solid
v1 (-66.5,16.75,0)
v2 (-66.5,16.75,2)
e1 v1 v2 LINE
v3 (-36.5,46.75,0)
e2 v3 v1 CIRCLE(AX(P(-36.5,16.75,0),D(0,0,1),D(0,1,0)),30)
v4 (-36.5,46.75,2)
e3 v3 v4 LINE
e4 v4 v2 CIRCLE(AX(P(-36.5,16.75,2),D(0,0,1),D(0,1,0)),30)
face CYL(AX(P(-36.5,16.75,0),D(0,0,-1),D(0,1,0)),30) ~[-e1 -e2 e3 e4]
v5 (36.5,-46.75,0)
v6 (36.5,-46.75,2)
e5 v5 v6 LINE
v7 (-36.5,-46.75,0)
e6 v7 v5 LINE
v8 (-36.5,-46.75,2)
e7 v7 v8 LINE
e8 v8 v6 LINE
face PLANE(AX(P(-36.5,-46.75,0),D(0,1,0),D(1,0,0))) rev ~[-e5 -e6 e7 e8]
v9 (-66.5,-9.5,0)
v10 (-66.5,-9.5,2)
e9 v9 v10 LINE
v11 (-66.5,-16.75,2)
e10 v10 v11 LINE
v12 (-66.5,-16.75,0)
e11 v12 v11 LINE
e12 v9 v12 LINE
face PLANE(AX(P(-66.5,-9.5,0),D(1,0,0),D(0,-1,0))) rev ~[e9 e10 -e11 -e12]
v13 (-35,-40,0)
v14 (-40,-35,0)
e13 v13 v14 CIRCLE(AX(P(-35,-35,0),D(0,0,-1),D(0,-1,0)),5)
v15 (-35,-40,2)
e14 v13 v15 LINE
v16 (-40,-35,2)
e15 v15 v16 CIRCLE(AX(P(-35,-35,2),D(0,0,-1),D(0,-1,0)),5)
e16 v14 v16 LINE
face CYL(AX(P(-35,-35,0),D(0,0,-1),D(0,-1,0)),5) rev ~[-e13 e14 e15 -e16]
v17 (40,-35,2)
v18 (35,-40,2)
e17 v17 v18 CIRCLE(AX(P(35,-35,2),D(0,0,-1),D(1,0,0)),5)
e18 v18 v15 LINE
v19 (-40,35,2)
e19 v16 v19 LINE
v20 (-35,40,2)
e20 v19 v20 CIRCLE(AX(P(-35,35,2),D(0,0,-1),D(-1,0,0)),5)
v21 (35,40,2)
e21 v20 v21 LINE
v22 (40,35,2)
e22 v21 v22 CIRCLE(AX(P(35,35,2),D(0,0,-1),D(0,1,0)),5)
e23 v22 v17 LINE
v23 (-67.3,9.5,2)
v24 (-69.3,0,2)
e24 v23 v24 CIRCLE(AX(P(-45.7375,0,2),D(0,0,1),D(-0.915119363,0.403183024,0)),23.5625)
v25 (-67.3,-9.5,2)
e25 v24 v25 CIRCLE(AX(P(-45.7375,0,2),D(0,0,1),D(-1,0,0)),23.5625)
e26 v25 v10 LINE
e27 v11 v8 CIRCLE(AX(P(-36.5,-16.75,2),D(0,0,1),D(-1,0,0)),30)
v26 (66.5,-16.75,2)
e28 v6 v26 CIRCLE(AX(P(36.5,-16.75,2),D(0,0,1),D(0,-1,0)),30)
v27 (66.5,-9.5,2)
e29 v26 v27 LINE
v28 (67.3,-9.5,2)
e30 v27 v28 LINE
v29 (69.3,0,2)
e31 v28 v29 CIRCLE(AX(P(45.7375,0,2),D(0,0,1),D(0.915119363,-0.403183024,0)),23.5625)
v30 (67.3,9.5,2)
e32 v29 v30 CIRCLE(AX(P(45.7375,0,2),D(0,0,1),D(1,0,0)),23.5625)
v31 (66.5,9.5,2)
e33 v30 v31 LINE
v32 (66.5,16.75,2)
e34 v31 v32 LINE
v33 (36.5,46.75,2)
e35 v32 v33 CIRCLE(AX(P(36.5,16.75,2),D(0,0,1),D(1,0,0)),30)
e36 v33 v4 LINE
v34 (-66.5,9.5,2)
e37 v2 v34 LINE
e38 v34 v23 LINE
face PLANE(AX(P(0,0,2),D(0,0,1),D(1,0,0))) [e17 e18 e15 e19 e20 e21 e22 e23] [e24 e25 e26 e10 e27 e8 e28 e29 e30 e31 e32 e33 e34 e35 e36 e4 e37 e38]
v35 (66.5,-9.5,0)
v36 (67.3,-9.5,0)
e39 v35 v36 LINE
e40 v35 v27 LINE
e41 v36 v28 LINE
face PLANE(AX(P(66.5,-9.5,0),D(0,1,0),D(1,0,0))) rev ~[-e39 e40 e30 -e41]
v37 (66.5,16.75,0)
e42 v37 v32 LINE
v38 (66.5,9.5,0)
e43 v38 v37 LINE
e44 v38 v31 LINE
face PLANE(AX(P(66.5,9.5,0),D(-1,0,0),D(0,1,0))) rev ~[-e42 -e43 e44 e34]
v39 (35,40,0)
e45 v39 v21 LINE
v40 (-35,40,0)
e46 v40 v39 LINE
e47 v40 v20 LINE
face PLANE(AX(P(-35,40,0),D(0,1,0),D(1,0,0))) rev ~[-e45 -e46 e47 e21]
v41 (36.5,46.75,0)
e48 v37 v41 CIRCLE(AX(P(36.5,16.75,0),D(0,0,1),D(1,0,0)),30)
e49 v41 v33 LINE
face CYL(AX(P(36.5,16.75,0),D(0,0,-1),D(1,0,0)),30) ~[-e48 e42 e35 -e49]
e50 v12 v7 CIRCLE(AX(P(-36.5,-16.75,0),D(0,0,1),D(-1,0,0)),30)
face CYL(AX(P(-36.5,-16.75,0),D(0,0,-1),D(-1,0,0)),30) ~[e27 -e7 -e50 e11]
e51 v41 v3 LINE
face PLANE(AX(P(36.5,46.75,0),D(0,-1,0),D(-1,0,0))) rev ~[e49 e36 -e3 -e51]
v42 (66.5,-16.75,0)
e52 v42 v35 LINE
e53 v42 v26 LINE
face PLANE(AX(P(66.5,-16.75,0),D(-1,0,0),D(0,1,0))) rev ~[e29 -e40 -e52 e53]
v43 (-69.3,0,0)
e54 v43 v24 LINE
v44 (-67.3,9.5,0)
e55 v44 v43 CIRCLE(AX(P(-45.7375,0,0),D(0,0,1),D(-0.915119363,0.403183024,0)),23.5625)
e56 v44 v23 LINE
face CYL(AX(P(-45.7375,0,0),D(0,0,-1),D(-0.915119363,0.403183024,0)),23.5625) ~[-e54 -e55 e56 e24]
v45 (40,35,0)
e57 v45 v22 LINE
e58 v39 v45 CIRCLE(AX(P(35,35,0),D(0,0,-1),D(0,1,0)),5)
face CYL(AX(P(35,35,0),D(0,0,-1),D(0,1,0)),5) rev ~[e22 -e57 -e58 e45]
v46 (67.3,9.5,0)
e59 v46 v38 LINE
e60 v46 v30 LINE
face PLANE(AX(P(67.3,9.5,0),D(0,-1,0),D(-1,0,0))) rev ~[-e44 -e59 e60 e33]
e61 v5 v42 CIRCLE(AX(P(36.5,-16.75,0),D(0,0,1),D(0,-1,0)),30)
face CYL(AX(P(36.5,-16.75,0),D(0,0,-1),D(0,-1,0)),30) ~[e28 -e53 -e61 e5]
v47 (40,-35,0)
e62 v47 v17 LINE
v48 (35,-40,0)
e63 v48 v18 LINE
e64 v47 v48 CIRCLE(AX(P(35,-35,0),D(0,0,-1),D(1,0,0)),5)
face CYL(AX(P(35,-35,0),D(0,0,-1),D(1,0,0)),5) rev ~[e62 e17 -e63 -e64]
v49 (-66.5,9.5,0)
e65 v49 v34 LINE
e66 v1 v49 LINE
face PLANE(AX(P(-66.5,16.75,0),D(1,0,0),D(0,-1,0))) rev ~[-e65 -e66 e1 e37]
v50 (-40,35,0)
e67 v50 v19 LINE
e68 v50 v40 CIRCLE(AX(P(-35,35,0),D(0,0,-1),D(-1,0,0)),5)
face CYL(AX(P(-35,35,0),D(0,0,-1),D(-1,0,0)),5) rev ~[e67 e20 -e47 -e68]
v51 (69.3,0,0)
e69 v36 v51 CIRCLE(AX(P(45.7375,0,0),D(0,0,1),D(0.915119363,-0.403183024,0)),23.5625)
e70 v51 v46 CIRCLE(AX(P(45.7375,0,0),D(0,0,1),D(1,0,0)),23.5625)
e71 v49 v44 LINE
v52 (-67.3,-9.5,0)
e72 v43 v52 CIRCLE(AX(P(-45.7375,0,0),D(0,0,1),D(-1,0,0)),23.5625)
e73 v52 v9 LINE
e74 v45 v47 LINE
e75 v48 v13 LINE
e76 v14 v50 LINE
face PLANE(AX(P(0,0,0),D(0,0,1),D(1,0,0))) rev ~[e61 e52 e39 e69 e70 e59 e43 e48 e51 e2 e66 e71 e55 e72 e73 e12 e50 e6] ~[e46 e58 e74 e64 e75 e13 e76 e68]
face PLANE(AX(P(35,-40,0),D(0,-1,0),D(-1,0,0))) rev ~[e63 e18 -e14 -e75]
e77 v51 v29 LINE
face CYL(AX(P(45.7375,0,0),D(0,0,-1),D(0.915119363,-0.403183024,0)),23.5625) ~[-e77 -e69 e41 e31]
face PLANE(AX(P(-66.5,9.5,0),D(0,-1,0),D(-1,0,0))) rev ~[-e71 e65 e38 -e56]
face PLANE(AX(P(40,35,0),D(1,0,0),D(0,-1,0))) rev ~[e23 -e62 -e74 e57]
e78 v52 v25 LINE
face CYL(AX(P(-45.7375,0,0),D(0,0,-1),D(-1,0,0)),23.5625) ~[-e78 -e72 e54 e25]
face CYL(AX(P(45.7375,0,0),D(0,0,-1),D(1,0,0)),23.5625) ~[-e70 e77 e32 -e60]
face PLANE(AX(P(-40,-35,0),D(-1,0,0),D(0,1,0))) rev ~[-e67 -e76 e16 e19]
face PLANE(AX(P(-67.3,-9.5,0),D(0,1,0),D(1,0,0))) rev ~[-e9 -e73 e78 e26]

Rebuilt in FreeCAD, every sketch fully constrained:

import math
import FreeCAD as App
import Part
import Sketcher

V = App.Vector

doc = App.newDocument("Part")
body = doc.addObject("PartDesign::Body", "Body")

# Sketch on XY plane
sketch1 = body.newObject("Sketcher::SketchObject", "Sketch")
sketch1.AttachmentSupport = (doc.getObject("XY_Plane"), [""])
sketch1.MapMode = "FlatFace"
sketch1.addGeometry([
    Part.ArcOfCircle(Part.Circle(V(36.5, 16.75, 0), V(0, 0, 1), 30), math.radians(0), math.radians(90)),  # 0
    Part.LineSegment(V(36.5, 46.75, 0), V(-36.5, 46.75, 0)),  # 1
    Part.ArcOfCircle(Part.Circle(V(-36.5, 16.75, 0), V(0, 0, 1), 30), math.radians(90), math.radians(180)),  # 2
    Part.LineSegment(V(-66.5, 16.75, 0), V(-66.5, 9.5, 0)),  # 3
    Part.LineSegment(V(-66.5, 9.5, 0), V(-67.3, 9.5, 0)),  # 4
    Part.ArcOfCircle(Part.Circle(V(-45.7375, 0, 0), V(0, 0, 1), 23.5625), math.radians(156.222684), math.radians(180)),  # 5
    Part.ArcOfCircle(Part.Circle(V(-45.7375, 0, 0), V(0, 0, 1), 23.5625), math.radians(180), math.radians(203.777316)),  # 6
    Part.LineSegment(V(-67.3, -9.5, 0), V(-66.5, -9.5, 0)),  # 7
    Part.LineSegment(V(-66.5, -9.5, 0), V(-66.5, -16.75, 0)),  # 8
    Part.ArcOfCircle(Part.Circle(V(-36.5, -16.75, 0), V(0, 0, 1), 30), math.radians(180), math.radians(270)),  # 9
    Part.LineSegment(V(-36.5, -46.75, 0), V(36.5, -46.75, 0)),  # 10
    Part.ArcOfCircle(Part.Circle(V(36.5, -16.75, 0), V(0, 0, 1), 30), math.radians(-90), math.radians(0)),  # 11
    Part.LineSegment(V(66.5, -16.75, 0), V(66.5, -9.5, 0)),  # 12
    Part.LineSegment(V(66.5, -9.5, 0), V(67.3, -9.5, 0)),  # 13
    Part.ArcOfCircle(Part.Circle(V(45.7375, 0, 0), V(0, 0, 1), 23.5625), math.radians(-23.777316), math.radians(0)),  # 14
    Part.ArcOfCircle(Part.Circle(V(45.7375, 0, 0), V(0, 0, 1), 23.5625), math.radians(0), math.radians(23.777316)),  # 15
    Part.LineSegment(V(67.3, 9.5, 0), V(66.5, 9.5, 0)),  # 16
    Part.LineSegment(V(66.5, 9.5, 0), V(66.5, 16.75, 0)),  # 17
    Part.ArcOfCircle(Part.Circle(V(-35, 35, 0), V(0, 0, 1), 5), math.radians(90), math.radians(180)),  # 18
    Part.LineSegment(V(-35, 40, 0), V(35, 40, 0)),  # 19
    Part.ArcOfCircle(Part.Circle(V(35, 35, 0), V(0, 0, 1), 5), math.radians(0), math.radians(90)),  # 20
    Part.LineSegment(V(40, 35, 0), V(40, -35, 0)),  # 21
    Part.ArcOfCircle(Part.Circle(V(35, -35, 0), V(0, 0, 1), 5), math.radians(-90), math.radians(0)),  # 22
    Part.LineSegment(V(35, -40, 0), V(-35, -40, 0)),  # 23
    Part.ArcOfCircle(Part.Circle(V(-35, -35, 0), V(0, 0, 1), 5), math.radians(180), math.radians(270)),  # 24
    Part.LineSegment(V(-40, -35, 0), V(-40, 35, 0)),  # 25
], False)
sketch1.addConstraint([
    Sketcher.Constraint("Tangent", 0, 2, 1, 1),
    Sketcher.Constraint("Tangent", 1, 2, 2, 1),
    Sketcher.Constraint("Tangent", 2, 2, 3, 1),
    Sketcher.Constraint("Coincident", 3, 2, 4, 1),
    Sketcher.Constraint("Coincident", 4, 2, 5, 1),
    Sketcher.Constraint("Tangent", 5, 2, 6, 1),
    Sketcher.Constraint("Coincident", 6, 2, 7, 1),
    Sketcher.Constraint("Coincident", 7, 2, 8, 1),
    Sketcher.Constraint("Tangent", 8, 2, 9, 1),
    Sketcher.Constraint("Tangent", 9, 2, 10, 1),
    Sketcher.Constraint("Tangent", 10, 2, 11, 1),
    Sketcher.Constraint("Tangent", 11, 2, 12, 1),
    Sketcher.Constraint("Coincident", 12, 2, 13, 1),
    Sketcher.Constraint("Coincident", 13, 2, 14, 1),
    Sketcher.Constraint("Tangent", 14, 2, 15, 1),
    Sketcher.Constraint("Coincident", 15, 2, 16, 1),
    Sketcher.Constraint("Coincident", 16, 2, 17, 1),
    Sketcher.Constraint("Tangent", 17, 2, 0, 1),
    Sketcher.Constraint("Tangent", 18, 1, 19, 1),
    Sketcher.Constraint("Tangent", 19, 2, 20, 2),
    Sketcher.Constraint("Tangent", 20, 1, 21, 1),
    Sketcher.Constraint("Tangent", 21, 2, 22, 2),
    Sketcher.Constraint("Tangent", 22, 1, 23, 1),
    Sketcher.Constraint("Tangent", 23, 2, 24, 2),
    Sketcher.Constraint("Tangent", 24, 1, 25, 1),
    Sketcher.Constraint("Tangent", 25, 2, 18, 2),
    Sketcher.Constraint("Horizontal", 1),
    Sketcher.Constraint("Vertical", 3),
    Sketcher.Constraint("Horizontal", 4),
    Sketcher.Constraint("Horizontal", 7),
    Sketcher.Constraint("Vertical", 8),
    Sketcher.Constraint("Horizontal", 10),
    Sketcher.Constraint("Vertical", 12),
    Sketcher.Constraint("Horizontal", 13),
    Sketcher.Constraint("Horizontal", 16),
    Sketcher.Constraint("Vertical", 17),
    Sketcher.Constraint("Horizontal", 19),
    Sketcher.Constraint("Vertical", 21),
    Sketcher.Constraint("Horizontal", 23),
    Sketcher.Constraint("Vertical", 25),
    Sketcher.Constraint("Equal", 0, 2),
    Sketcher.Constraint("Equal", 5, 6),
    Sketcher.Constraint("Equal", 2, 9),
    Sketcher.Constraint("Equal", 9, 11),
    Sketcher.Constraint("Equal", 6, 14),
    Sketcher.Constraint("Equal", 14, 15),
    Sketcher.Constraint("Equal", 18, 20),
    Sketcher.Constraint("Equal", 20, 22),
    Sketcher.Constraint("Equal", 22, 24),
    Sketcher.Constraint("Symmetric", 0, 3, 9, 3, -1, 1),
    Sketcher.Constraint("Symmetric", 5, 3, 14, 3, -1, 1),
    Sketcher.Constraint("Symmetric", 18, 3, 22, 3, -1, 1),
    Sketcher.Constraint("Symmetric", 3, 2, 12, 2, -1, 1),
    Sketcher.Constraint("Symmetric", 7, 2, 12, 2, -2),
    Sketcher.Constraint("Symmetric", 4, 2, 15, 2, -2),
    Sketcher.Constraint("PointOnObject", 5, 2, -1),
    Sketcher.Constraint("PointOnObject", 14, 2, -1),
    Sketcher.Constraint("Equal", 23, 21),
    Sketcher.Constraint("Radius", 0, 30.0),
    Sketcher.Constraint("Radius", 18, 5.0),
    Sketcher.Constraint("DistanceX", 1, 2, 1, 1, 73.0),
    Sketcher.Constraint("DistanceX", 19, 1, 19, 2, 70.0),
    Sketcher.Constraint("DistanceX", 4, 2, 4, 1, 0.8),
    Sketcher.Constraint("DistanceX", 5, 2, 4, 2, 2.0),
    Sketcher.Constraint("DistanceY", 6, 2, 4, 2, 19.0),
    Sketcher.Constraint("DistanceY", 3, 2, 3, 1, 7.25),
])
pad1 = body.newObject("PartDesign::Pad", "Pad")
pad1.Profile = sketch1
pad1.Length = 2

doc.recompute()
